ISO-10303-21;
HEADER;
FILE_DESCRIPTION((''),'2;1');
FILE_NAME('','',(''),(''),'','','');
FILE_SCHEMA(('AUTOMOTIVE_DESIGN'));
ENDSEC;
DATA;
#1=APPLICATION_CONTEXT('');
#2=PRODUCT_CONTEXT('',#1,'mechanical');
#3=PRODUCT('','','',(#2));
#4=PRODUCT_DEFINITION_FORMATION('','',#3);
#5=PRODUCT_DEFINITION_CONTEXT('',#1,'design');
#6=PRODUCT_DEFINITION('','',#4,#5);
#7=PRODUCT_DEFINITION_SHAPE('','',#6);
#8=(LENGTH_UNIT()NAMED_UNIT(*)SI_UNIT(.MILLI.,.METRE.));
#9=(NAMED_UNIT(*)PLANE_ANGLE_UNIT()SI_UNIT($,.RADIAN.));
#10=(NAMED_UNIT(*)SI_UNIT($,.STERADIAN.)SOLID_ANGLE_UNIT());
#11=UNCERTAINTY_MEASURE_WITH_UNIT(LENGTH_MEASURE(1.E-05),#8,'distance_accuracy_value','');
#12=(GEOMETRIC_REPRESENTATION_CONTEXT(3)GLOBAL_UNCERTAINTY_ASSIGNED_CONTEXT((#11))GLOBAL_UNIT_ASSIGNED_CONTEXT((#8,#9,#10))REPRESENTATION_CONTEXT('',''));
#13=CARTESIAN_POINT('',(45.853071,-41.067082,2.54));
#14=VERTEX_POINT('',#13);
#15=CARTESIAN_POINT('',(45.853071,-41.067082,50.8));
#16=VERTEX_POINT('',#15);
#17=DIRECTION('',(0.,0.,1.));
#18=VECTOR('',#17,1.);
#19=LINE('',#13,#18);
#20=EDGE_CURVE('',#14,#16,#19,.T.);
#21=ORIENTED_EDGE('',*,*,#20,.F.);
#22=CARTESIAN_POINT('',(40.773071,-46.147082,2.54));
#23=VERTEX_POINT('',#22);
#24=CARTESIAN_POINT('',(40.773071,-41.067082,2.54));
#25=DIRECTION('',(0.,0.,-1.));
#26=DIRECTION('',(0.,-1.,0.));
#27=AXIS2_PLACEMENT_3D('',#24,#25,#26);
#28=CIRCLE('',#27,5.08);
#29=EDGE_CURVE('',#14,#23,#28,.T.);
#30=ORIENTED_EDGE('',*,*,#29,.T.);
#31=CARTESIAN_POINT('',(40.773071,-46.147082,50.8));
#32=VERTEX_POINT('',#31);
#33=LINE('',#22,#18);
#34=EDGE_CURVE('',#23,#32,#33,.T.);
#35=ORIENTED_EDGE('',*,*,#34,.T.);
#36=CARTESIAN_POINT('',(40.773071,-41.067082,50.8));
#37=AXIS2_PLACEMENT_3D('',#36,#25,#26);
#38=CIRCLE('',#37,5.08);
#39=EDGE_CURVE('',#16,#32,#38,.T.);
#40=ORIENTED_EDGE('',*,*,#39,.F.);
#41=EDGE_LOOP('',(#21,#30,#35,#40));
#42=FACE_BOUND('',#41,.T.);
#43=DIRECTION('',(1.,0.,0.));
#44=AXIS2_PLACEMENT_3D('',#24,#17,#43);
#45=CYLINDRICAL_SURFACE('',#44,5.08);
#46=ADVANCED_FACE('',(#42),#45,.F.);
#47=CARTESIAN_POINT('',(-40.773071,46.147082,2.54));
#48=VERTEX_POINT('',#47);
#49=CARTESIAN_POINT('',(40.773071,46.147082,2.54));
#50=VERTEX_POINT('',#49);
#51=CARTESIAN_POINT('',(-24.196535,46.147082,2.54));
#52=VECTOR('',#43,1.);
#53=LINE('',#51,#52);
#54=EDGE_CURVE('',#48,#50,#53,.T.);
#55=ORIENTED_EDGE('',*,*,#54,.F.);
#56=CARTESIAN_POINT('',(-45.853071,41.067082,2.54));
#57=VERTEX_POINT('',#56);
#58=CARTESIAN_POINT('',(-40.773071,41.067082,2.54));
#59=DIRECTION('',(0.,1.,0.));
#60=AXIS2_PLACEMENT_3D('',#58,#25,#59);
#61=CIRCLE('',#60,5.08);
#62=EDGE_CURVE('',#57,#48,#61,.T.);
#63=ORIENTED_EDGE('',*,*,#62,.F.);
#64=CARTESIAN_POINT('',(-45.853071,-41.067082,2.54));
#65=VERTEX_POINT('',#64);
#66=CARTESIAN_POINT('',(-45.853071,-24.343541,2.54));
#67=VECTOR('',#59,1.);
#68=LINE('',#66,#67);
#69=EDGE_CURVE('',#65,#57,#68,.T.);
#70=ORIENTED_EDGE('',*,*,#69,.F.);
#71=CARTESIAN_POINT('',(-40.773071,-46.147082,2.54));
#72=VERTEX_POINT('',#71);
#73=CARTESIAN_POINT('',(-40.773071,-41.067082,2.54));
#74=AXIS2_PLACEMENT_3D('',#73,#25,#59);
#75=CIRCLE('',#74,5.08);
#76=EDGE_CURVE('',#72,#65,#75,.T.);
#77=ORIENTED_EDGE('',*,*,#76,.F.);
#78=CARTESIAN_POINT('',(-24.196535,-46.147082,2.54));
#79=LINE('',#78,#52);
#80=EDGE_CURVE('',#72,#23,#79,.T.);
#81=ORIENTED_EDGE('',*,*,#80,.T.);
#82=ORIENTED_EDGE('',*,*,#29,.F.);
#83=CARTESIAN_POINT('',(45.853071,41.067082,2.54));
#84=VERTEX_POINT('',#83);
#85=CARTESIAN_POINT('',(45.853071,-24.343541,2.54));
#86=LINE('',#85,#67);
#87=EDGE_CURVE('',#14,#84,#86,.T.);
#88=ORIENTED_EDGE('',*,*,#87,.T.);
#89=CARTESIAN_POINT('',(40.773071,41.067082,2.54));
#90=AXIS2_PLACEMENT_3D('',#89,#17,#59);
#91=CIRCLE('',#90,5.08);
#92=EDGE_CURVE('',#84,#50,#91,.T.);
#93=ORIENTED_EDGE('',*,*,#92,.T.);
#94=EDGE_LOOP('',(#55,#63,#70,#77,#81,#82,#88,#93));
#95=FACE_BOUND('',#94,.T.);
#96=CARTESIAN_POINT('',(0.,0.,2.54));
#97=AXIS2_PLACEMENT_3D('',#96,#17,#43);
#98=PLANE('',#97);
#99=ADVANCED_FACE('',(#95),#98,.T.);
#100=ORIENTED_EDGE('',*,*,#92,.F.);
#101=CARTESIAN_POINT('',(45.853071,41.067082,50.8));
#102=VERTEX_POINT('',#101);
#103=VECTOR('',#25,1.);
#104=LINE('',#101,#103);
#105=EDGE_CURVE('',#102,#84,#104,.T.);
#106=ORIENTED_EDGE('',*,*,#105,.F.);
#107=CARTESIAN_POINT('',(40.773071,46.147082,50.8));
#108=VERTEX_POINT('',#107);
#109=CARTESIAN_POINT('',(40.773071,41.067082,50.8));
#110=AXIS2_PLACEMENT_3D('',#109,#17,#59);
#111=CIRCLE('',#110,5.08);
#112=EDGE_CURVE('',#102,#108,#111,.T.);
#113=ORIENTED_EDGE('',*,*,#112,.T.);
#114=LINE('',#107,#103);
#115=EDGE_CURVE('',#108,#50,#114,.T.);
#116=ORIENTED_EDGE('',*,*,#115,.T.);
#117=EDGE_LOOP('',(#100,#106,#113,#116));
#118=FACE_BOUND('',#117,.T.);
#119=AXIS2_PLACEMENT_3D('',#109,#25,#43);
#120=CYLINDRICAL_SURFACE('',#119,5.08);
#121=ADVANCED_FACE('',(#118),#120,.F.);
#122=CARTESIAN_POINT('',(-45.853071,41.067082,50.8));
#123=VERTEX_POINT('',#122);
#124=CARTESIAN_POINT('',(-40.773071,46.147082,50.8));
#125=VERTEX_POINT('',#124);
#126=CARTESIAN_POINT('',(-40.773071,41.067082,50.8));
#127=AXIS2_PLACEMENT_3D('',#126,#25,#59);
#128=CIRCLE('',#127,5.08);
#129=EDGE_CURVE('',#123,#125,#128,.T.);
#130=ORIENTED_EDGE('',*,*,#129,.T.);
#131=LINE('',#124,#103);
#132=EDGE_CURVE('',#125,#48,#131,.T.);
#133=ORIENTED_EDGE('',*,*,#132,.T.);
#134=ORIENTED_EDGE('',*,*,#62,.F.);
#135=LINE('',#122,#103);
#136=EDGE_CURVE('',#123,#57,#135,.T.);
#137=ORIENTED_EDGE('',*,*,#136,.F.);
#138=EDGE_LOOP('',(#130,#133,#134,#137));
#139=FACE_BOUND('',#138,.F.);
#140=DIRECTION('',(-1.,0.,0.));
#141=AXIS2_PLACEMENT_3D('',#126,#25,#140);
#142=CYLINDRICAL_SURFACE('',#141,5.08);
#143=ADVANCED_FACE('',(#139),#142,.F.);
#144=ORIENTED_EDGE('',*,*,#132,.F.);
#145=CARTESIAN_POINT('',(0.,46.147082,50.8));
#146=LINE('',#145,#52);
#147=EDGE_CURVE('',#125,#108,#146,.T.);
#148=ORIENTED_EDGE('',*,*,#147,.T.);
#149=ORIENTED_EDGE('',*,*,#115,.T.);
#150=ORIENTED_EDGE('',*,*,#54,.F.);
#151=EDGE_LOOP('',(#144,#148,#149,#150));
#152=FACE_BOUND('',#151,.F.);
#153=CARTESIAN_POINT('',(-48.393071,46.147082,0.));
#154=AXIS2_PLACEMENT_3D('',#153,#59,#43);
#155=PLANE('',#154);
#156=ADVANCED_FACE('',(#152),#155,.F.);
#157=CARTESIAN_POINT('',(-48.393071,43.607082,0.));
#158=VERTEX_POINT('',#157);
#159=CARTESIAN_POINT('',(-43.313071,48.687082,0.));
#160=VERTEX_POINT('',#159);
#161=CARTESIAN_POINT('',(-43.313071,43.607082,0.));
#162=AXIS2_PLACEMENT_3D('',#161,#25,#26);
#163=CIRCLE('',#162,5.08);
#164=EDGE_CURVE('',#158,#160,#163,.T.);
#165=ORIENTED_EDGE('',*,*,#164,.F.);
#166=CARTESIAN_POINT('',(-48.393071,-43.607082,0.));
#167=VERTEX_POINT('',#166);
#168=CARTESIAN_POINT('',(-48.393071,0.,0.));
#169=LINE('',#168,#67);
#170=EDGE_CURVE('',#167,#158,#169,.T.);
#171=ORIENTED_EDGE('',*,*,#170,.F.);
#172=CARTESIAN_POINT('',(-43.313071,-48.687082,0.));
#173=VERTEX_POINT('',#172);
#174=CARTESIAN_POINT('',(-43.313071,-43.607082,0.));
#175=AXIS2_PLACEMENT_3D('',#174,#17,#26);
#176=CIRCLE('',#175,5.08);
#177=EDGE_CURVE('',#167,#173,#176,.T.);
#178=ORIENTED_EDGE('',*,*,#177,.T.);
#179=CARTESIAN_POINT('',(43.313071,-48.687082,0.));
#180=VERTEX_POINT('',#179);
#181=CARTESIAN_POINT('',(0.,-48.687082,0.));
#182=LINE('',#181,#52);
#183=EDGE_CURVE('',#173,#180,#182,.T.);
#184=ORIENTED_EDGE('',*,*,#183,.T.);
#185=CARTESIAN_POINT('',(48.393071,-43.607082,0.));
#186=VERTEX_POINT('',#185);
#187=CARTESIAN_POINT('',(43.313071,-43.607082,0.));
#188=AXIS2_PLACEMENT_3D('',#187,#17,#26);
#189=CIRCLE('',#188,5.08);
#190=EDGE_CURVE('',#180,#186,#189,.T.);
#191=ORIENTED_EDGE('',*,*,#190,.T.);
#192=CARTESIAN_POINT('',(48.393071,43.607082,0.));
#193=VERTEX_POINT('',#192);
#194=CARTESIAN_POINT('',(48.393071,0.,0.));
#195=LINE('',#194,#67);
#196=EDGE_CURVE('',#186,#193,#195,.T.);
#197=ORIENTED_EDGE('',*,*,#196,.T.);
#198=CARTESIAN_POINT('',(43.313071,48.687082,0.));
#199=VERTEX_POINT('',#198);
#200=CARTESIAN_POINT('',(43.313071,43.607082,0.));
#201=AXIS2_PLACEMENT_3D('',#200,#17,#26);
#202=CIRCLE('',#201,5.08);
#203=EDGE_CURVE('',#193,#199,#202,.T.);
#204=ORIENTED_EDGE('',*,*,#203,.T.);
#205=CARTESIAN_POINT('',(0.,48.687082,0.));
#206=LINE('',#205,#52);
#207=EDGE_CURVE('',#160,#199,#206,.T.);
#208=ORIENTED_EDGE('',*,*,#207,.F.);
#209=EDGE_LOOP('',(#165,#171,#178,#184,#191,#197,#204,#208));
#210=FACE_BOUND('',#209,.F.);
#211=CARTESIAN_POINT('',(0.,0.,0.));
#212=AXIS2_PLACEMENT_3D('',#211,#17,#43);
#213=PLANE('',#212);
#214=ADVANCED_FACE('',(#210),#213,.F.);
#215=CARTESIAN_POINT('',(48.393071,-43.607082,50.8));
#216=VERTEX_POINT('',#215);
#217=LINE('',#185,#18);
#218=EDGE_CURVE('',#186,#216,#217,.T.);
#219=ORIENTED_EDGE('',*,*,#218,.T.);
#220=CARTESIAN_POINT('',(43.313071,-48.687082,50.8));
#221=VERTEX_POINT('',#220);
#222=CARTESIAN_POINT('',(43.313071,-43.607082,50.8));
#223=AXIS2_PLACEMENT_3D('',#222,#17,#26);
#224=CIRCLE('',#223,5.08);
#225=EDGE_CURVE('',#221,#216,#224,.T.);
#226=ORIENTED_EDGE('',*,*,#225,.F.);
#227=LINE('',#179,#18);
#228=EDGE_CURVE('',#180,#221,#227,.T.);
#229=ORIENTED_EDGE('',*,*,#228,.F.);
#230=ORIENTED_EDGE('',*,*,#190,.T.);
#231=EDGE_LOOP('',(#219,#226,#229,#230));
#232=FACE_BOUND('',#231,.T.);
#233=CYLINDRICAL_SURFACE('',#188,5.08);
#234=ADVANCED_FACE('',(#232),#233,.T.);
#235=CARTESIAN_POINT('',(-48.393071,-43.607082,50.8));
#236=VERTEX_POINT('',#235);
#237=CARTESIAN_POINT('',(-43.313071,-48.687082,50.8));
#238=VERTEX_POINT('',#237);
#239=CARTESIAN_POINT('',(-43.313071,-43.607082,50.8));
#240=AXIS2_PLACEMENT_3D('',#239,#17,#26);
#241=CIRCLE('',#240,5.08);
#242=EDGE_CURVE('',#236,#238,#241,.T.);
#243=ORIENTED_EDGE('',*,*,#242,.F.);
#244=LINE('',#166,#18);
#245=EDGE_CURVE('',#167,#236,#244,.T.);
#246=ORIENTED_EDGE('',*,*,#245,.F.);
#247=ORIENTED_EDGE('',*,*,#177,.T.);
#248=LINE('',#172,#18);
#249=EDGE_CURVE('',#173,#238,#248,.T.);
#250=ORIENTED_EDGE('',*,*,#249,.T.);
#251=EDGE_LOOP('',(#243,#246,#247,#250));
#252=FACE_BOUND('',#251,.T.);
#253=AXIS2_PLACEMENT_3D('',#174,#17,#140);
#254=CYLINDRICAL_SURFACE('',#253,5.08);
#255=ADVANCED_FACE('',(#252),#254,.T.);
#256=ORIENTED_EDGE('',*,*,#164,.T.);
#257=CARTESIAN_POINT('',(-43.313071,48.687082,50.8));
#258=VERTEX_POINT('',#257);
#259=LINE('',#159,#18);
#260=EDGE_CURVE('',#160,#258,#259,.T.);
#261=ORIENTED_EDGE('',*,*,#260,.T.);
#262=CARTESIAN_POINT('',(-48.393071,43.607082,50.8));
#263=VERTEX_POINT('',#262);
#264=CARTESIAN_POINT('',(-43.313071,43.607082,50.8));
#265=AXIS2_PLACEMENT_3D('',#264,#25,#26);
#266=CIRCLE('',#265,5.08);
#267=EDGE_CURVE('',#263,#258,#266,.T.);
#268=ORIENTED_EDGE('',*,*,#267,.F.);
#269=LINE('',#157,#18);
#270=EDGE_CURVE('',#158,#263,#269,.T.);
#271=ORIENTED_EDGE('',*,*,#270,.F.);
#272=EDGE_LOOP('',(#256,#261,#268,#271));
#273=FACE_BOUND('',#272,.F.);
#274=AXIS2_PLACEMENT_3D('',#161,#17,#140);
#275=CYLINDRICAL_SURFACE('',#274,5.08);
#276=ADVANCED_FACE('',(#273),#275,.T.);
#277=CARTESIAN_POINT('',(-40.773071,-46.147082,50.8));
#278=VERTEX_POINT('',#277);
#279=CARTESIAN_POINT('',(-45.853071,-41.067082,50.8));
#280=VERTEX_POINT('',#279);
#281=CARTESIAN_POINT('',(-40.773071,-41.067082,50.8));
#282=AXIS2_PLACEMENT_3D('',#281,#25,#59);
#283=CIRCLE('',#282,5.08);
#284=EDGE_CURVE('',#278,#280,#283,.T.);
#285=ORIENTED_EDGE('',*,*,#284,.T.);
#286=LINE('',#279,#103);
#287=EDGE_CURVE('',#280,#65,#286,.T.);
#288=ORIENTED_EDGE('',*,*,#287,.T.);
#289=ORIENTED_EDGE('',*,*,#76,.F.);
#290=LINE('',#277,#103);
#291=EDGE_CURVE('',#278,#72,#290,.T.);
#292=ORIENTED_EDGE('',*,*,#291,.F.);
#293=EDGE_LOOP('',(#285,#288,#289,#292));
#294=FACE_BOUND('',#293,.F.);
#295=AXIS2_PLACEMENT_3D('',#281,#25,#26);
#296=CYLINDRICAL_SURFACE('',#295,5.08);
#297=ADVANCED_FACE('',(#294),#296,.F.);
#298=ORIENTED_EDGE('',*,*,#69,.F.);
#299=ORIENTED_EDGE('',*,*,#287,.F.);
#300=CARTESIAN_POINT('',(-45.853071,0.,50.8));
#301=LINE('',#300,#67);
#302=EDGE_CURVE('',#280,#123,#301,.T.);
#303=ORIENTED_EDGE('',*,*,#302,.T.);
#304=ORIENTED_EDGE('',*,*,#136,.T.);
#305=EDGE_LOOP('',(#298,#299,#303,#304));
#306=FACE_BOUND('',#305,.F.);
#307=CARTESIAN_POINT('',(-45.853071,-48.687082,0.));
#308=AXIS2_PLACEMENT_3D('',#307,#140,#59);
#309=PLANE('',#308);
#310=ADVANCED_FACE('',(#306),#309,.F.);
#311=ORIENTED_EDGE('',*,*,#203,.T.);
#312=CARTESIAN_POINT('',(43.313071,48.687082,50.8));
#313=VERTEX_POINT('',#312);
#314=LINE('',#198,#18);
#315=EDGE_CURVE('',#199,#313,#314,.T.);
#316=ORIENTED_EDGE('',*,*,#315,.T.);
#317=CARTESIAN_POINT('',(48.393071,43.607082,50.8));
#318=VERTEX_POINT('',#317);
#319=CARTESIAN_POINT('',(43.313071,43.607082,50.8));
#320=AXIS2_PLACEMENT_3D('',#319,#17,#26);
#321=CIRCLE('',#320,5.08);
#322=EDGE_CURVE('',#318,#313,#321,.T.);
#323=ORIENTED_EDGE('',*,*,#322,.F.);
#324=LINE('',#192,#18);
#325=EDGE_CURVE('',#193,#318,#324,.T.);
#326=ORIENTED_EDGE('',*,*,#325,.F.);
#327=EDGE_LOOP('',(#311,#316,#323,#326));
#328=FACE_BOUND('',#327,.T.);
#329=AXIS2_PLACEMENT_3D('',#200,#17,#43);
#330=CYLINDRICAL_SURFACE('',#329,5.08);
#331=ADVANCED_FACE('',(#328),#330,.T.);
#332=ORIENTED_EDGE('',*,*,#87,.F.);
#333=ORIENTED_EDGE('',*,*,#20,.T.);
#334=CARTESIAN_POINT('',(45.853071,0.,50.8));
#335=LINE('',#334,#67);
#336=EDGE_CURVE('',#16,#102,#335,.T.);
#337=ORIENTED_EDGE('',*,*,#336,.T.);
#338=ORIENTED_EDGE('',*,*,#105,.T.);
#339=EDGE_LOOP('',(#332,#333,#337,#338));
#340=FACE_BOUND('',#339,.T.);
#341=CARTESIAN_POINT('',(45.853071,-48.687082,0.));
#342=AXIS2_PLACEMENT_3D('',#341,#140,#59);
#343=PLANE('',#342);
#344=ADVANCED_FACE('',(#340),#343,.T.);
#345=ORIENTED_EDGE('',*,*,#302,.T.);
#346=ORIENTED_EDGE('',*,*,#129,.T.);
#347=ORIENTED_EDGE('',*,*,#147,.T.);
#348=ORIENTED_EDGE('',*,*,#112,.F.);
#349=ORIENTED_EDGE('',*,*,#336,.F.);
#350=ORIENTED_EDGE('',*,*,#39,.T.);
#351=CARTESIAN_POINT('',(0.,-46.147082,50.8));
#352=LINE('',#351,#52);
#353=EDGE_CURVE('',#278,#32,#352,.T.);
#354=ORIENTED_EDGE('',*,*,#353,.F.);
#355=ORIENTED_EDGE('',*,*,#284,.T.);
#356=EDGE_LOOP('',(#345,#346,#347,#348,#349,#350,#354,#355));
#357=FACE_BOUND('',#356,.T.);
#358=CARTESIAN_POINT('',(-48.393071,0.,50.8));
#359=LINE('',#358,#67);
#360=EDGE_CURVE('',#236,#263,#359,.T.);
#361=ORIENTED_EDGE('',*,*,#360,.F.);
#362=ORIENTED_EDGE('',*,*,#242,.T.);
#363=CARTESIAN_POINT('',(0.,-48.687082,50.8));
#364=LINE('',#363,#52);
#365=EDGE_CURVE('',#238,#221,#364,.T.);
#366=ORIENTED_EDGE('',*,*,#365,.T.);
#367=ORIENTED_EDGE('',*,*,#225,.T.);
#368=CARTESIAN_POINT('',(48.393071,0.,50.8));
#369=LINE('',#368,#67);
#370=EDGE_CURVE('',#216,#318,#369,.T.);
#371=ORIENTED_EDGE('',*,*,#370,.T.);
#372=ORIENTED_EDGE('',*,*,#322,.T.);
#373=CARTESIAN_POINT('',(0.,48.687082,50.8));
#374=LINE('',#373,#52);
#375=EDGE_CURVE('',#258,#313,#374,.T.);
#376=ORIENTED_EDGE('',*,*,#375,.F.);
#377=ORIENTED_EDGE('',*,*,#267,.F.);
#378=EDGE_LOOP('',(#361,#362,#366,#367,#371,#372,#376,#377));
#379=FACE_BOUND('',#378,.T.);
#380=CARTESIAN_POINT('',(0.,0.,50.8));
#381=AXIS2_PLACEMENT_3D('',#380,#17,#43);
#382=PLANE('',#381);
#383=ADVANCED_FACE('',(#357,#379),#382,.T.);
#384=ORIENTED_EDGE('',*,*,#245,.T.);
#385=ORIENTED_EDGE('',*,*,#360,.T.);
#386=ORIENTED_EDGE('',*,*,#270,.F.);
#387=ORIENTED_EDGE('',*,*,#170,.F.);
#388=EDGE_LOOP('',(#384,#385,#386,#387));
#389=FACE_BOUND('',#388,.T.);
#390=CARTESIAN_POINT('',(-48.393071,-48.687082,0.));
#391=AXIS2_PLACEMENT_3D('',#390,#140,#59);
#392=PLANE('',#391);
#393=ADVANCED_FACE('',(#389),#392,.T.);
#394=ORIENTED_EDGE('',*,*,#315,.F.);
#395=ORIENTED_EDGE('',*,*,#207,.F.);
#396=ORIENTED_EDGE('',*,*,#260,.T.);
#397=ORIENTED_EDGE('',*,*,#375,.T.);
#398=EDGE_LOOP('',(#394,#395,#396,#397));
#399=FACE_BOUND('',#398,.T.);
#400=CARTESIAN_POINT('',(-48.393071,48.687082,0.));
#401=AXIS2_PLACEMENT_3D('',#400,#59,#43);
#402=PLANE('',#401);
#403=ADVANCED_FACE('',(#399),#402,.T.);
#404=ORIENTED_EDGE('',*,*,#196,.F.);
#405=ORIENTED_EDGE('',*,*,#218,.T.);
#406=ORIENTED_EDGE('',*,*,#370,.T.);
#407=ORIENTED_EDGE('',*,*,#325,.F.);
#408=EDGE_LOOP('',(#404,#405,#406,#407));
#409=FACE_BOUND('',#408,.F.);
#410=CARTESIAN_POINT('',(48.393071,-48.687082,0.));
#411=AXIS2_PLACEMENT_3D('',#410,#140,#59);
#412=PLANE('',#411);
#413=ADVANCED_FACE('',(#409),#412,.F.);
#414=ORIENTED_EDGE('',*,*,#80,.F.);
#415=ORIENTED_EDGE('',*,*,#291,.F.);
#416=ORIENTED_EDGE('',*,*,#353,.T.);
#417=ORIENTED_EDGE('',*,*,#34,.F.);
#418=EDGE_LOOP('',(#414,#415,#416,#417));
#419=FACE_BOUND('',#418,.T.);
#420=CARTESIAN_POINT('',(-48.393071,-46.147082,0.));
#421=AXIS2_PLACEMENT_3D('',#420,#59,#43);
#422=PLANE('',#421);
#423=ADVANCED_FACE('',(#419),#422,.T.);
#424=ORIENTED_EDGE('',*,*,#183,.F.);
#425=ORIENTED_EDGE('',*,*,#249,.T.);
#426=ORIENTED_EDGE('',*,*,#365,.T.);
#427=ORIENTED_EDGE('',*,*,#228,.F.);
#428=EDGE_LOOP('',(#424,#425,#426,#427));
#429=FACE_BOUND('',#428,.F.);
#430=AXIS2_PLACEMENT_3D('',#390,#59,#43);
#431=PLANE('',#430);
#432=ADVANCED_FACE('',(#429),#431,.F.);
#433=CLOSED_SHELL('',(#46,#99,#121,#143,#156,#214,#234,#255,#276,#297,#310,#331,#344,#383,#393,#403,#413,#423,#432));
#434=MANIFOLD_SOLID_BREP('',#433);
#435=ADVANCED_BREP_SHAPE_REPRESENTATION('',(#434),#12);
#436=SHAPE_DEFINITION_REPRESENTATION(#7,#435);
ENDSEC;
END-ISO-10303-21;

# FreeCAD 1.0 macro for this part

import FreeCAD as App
import Part
import Sketcher
Q = App.Units.Quantity


def edges_at(feature, points):
    """Names of the edges that pass closest to the given points."""
    edges = feature.Shape.Edges
    near = lambda p: min(range(len(edges)), key=lambda i: edges[i].distToShape(Part.Vertex(*p))[0])
    return sorted({f"Edge{near(p) + 1}" for p in points})


def faces_at(feature, points):
    """Names of the faces that lie closest to the given points."""
    faces = feature.Shape.Faces
    near = lambda p: min(range(len(faces)), key=lambda i: faces[i].distToShape(Part.Vertex(*p))[0])
    return sorted({f"Face{near(p) + 1}" for p in points})


def add_polygon(sketch, points):
    """Adds a closed chain of lines whose ends are joined by coincident constraints."""
    first, n = sketch.GeometryCount, len(points)
    for a, b in zip(points, points[1:] + points[:1]):
        sketch.addGeometry(Part.LineSegment(App.Vector(*a, 0), App.Vector(*b, 0)), False)
    for i in range(n):
        sketch.addConstraint(Sketcher.Constraint("Coincident", first + i, 2, first + (i + 1) % n, 1))

doc = App.newDocument("Part")
params = doc.addObject("Spreadsheet::Sheet", "Params")
for row, (alias, value) in enumerate([
    ("pad1_length", "2 in"),
    ("thickness_wall", "0.1 in"),
    ("fillet_radius", "0.2 in"),
    ("fillet2_radius", "0.2 in"),
], start=1):
    params.set(f"A{row}", alias)
    params.set(f"B{row}", "=" + value)
    params.setAlias(f"B{row}", alias)

body = doc.addObject("PartDesign::Body", "Body")

# Sketch on XY plane
sketch1 = body.newObject("Sketcher::SketchObject", "Sketch")
sketch1.AttachmentSupport = (doc.getObject("XY_Plane"), [""])
sketch1.MapMode = "FlatFace"
add_polygon(sketch1, [(-48, 49), (-48, -49), (48, -49), (48, 49)])  # lines 0-3
sketch1.addConstraint(Sketcher.Constraint("Vertical", 0))
sketch1.addConstraint(Sketcher.Constraint("Horizontal", 1))
sketch1.addConstraint(Sketcher.Constraint("Vertical", 2))
sketch1.addConstraint(Sketcher.Constraint("Horizontal", 3))
sketch1.addConstraint(Sketcher.Constraint("Symmetric", 0, 2, 2, 2, -1, 1))
sketch1.addConstraint(Sketcher.Constraint("DistanceX", 1, 1, 1, 2, Q("96.786141 mm")))
sketch1.addConstraint(Sketcher.Constraint("DistanceY", 0, 2, 0, 1, Q("97.374164 mm")))
pad1 = body.newObject("PartDesign::Pad", "Pad")
pad1.Profile = sketch1
pad1.setExpression("Length", "Params.pad1_length")
doc.recompute()

thickness = body.newObject("PartDesign::Thickness", "Thickness")
thickness.Base = (pad1, faces_at(pad1, [(0, 0, 50.8)]))
thickness.setExpression("Value", "Params.thickness_wall")
thickness.Reversed = True
thickness.Join = "Arc"
doc.recompute()

fillet = body.newObject("PartDesign::Fillet", "Fillet")
fillet.Base = (thickness, edges_at(thickness, [
    (-48.393, -48.687, 25.4),
    (-48.393, 48.687, 25.4),
    (48.393, 48.687, 25.4),
    (48.393, -48.687, 25.4),
]))
fillet.setExpression("Radius", "Params.fillet_radius")
doc.recompute()

fillet2 = body.newObject("PartDesign::Fillet", "Fillet001")
fillet2.Base = (fillet, edges_at(fillet, [
    (-45.853, -46.147, 26.67),
    (-45.853, 46.147, 26.67),
    (45.853, -46.147, 26.67),
    (45.853, 46.147, 26.67),
]))
fillet2.setExpression("Radius", "Params.fillet2_radius")

doc.recompute()
